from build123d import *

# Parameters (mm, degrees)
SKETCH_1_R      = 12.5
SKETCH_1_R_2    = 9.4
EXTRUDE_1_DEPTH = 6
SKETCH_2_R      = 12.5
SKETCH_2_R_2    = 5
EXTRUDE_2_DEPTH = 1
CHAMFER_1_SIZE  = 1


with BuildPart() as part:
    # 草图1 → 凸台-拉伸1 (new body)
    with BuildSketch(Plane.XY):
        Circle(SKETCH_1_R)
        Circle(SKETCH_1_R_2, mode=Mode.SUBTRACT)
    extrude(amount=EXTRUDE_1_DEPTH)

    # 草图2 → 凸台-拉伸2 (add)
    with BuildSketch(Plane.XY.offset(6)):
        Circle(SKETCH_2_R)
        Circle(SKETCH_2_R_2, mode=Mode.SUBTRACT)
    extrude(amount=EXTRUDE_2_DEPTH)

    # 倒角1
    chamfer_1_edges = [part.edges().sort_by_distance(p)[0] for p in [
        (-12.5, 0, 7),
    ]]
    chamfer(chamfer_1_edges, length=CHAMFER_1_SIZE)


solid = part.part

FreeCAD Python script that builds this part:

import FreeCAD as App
import Part
import Sketcher

V = App.Vector


def edges_at(feature, points):
    """Names of the edges that pass closest to the given points."""
    edges = feature.Shape.Edges
    near = lambda p: min(range(len(edges)), key=lambda i: edges[i].distToShape(Part.Vertex(*p))[0])
    return sorted({f"Edge{near(p) + 1}" for p in points})

doc = App.newDocument("Part")
body = doc.addObject("PartDesign::Body", "Body")

# Sketch on XY plane
sketch1 = doc.addObject("Sketcher::SketchObject", "Sketch")
body.addObject(sketch1)
sketch1.AttachmentSupport = (doc.XY_Plane, [""])
sketch1.MapMode = "FlatFace"
sketch1.addGeometry([
    Part.Circle(V(0, 0, 0), V(0, 0, 1), 12),
    Part.Circle(V(0, 0, 0), V(0, 0, 1), 9),
], False)
sketch1.addConstraint([
    Sketcher.Constraint("Coincident", 0, 3, -1, 1),
    Sketcher.Constraint("Coincident", 1, 3, -1, 1),
    Sketcher.Constraint("Diameter", 0, 25.0),
    Sketcher.Constraint("Diameter", 1, 18.8),
])
pad1 = doc.addObject("PartDesign::Pad", "Pad")
body.addObject(pad1)
pad1.Profile = sketch1
pad1.Length = 6

# Sketch on XY plane
sketch2 = doc.addObject("Sketcher::SketchObject", "Sketch001")
body.addObject(sketch2)
sketch2.AttachmentSupport = (doc.XY_Plane, [""])
sketch2.MapMode = "FlatFace"
sketch2.AttachmentOffset = App.Placement(V(0, 0, 6), App.Rotation())
sketch2.addGeometry([
    Part.Circle(V(0, 0, 0), V(0, 0, 1), 12),
    Part.Circle(V(0, 0, 0), V(0, 0, 1), 5),
], False)
sketch2.addConstraint([
    Sketcher.Constraint("Coincident", 0, 3, -1, 1),
    Sketcher.Constraint("Coincident", 1, 3, -1, 1),
    Sketcher.Constraint("Diameter", 0, 25.0),
    Sketcher.Constraint("Diameter", 1, 10.0),
])
pad2 = doc.addObject("PartDesign::Pad", "Pad001")
body.addObject(pad2)
pad2.Profile = sketch2
pad2.Length = 1
doc.recompute()

chamfer = doc.addObject("PartDesign::Chamfer", "Chamfer")
body.addObject(chamfer)
chamfer.Base = (pad2, edges_at(pad2, [(-12.5, 0, 7)]))
chamfer.Size = 1

doc.recompute()
